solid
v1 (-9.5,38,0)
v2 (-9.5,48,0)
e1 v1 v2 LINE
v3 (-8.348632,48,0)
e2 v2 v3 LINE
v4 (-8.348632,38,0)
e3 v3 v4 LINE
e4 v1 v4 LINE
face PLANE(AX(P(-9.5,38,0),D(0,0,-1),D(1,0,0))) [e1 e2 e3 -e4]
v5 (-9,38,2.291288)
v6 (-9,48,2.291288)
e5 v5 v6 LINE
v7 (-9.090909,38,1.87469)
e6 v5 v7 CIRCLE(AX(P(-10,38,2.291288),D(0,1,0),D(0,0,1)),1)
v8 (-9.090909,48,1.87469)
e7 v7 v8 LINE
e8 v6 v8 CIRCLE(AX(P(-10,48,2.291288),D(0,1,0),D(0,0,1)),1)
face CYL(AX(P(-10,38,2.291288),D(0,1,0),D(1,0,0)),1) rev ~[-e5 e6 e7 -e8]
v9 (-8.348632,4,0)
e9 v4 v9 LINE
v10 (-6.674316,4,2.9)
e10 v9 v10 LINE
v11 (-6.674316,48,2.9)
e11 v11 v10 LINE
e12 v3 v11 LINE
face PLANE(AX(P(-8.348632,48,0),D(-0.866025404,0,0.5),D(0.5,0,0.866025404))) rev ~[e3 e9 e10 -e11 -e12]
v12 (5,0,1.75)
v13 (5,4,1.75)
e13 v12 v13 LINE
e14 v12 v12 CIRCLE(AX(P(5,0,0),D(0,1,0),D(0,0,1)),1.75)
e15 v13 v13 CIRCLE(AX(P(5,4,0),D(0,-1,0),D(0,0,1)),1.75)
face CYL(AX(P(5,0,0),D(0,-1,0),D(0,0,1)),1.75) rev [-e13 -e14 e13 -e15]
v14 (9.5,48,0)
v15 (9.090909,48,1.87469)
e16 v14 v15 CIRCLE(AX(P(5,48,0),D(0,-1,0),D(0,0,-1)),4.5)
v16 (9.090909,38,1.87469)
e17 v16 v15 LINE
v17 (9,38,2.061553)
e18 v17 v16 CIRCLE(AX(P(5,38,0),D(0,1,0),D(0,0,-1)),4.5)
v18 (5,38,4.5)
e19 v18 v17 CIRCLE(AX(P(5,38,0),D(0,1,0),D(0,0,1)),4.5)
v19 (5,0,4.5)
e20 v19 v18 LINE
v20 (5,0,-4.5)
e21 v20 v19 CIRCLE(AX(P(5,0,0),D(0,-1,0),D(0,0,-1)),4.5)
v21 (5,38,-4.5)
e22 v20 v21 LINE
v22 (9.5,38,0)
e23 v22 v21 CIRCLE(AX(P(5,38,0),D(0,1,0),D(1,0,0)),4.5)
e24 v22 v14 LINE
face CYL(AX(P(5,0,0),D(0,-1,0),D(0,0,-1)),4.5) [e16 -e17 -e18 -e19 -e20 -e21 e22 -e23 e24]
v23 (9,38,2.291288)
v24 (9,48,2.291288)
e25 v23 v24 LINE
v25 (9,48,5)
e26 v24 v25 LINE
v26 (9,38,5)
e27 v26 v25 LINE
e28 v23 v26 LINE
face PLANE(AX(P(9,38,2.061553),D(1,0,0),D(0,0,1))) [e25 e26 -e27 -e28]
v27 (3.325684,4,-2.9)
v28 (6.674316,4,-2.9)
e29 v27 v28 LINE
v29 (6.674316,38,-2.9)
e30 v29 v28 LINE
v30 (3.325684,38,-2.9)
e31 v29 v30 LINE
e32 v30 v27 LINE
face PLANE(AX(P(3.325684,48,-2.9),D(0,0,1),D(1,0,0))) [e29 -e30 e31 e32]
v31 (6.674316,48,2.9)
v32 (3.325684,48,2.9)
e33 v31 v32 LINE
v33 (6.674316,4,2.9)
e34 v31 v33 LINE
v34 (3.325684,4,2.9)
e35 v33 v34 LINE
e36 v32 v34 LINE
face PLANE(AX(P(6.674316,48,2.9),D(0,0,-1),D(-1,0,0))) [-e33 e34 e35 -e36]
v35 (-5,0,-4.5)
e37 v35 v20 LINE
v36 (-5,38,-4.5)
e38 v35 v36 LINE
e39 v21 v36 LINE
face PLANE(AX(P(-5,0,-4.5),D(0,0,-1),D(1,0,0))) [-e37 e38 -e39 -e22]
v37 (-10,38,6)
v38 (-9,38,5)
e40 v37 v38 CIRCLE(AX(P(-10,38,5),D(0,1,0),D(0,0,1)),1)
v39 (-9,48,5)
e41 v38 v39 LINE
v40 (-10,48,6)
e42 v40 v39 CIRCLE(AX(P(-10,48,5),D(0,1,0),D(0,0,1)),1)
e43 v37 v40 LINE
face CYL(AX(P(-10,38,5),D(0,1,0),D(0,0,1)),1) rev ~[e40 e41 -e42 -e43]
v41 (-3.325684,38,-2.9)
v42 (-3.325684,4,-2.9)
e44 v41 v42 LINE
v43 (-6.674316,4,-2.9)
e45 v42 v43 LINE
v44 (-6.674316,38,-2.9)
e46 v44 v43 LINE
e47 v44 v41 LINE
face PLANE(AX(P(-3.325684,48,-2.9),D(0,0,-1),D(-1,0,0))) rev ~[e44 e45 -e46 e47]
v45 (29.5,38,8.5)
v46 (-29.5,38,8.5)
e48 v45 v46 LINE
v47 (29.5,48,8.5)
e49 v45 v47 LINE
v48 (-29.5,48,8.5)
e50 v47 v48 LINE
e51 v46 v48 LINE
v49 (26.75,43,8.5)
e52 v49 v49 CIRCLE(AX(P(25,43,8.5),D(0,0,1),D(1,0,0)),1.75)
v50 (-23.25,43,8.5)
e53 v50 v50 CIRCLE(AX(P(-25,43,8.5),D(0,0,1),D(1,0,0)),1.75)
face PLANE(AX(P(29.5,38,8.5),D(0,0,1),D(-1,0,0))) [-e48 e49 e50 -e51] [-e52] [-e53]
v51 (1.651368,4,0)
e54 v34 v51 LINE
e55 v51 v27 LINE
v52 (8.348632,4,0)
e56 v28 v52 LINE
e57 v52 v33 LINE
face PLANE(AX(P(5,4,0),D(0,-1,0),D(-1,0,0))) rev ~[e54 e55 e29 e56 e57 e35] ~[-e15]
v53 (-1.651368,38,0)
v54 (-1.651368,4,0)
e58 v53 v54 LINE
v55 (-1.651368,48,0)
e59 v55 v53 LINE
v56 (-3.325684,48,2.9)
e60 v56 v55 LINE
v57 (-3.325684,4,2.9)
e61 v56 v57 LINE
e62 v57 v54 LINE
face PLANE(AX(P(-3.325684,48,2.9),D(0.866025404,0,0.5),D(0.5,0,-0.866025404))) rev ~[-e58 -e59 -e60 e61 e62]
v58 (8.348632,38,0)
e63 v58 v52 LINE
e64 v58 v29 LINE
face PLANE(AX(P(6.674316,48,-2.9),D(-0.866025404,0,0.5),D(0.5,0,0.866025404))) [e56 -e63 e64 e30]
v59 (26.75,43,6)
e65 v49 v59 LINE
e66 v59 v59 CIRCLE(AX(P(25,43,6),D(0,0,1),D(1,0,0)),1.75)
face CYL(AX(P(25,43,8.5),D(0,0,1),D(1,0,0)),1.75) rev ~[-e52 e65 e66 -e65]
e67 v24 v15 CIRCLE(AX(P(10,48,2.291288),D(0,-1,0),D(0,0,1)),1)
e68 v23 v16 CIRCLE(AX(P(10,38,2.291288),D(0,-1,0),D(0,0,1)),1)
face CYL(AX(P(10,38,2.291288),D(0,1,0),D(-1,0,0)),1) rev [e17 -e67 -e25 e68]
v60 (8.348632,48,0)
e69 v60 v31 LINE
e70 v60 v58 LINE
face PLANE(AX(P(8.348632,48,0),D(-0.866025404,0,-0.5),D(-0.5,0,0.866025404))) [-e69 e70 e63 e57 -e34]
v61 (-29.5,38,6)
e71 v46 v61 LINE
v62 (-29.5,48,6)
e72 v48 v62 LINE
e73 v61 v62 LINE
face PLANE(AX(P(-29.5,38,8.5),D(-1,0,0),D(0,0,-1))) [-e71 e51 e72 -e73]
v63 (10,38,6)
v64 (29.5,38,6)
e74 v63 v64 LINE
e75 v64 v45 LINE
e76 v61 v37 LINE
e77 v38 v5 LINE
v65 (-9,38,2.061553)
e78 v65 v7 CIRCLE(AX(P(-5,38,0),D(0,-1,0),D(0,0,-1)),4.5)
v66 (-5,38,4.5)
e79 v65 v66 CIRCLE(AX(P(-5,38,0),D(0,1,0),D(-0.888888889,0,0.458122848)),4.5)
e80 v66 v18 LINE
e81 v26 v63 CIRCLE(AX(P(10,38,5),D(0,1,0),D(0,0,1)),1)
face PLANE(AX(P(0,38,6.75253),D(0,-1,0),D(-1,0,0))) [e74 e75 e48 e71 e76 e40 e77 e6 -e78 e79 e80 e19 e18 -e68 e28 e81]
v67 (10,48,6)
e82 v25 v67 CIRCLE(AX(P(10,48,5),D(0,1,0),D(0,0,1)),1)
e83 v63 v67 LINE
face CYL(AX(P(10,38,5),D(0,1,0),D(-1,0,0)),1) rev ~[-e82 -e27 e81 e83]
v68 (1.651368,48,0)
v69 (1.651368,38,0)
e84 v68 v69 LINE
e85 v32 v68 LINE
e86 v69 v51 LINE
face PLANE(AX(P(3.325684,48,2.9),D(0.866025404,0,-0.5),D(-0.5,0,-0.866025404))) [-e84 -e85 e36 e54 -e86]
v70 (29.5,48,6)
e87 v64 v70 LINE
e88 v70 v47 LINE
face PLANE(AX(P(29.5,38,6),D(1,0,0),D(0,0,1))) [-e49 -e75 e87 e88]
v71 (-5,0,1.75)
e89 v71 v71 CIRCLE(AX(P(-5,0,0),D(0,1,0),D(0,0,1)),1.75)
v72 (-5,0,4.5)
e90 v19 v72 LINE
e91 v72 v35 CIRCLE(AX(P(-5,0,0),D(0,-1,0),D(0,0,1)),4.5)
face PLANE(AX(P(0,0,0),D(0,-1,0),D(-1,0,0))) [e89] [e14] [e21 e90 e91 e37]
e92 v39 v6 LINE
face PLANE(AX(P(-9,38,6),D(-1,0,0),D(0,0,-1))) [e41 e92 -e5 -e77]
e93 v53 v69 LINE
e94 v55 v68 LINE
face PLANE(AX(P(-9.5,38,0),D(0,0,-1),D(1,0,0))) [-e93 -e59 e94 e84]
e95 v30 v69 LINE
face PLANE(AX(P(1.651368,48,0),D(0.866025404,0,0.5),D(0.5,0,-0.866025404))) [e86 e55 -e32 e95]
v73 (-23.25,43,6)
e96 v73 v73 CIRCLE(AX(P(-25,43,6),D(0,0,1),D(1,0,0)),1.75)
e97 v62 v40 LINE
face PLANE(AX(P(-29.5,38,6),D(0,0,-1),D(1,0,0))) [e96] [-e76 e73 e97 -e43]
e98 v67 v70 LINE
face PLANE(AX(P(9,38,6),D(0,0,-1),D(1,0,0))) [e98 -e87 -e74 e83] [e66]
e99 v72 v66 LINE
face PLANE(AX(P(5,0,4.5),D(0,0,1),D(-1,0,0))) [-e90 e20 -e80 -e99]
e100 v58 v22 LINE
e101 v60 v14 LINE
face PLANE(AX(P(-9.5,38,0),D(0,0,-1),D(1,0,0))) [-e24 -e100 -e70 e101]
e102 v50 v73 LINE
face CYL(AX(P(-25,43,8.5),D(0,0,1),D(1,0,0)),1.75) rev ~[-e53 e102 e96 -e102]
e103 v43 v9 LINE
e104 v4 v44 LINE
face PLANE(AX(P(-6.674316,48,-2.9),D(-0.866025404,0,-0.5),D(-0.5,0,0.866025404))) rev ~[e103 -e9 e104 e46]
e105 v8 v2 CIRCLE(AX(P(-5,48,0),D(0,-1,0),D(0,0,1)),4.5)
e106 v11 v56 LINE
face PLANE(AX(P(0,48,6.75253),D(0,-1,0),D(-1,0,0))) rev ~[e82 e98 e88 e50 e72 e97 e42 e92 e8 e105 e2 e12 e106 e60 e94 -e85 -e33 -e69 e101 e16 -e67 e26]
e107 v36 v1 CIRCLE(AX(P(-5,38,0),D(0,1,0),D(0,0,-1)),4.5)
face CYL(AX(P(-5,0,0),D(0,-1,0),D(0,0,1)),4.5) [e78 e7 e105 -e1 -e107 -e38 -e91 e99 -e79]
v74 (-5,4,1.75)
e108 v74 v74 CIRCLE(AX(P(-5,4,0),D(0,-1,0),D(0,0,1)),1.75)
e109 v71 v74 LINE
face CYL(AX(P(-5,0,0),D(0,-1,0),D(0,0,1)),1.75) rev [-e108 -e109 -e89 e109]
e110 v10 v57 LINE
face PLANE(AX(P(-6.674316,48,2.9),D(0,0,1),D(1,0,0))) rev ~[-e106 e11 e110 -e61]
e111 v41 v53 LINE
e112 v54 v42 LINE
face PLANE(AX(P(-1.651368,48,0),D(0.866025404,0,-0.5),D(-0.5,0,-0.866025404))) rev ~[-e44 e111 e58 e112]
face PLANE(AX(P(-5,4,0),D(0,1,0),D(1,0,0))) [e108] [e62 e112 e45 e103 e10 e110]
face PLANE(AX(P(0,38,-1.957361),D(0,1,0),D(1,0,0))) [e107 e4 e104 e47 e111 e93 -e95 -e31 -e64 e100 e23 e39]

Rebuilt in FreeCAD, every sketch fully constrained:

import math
import FreeCAD as App
import Part
import Sketcher
from FreeCAD import Vector
Q = App.Units.Quantity


def edges_at(feature, points):
    """Names of the edges that pass closest to the given points."""
    edges = feature.Shape.Edges
    near = lambda p: min(range(len(edges)), key=lambda i: edges[i].distToShape(Part.Vertex(*p))[0])
    return sorted({f"Edge{near(p) + 1}" for p in points})

doc = App.newDocument("Part")
body = doc.addObject("PartDesign::Body", "Body")

# Sketch on XZ plane
sketch1 = body.newObject("Sketcher::SketchObject", "Sketch")
sketch1.AttachmentSupport = (doc.getObject("XZ_Plane"), [""])
sketch1.MapMode = "FlatFace"
sketch1.addGeometry([
    Part.LineSegment(Vector(5, -4.5, 0), Vector(-5, -4.5, 0)),  # 0
    Part.ArcOfCircle(Part.Circle(Vector(-5, 0, 0), Vector(0, 0, 1), 4.5), math.radians(90), math.radians(270)),  # 1
    Part.LineSegment(Vector(-5, 4.5, 0), Vector(5, 4.5, 0)),  # 2
    Part.ArcOfCircle(Part.Circle(Vector(5, 0, 0), Vector(0, 0, 1), 4.5), math.radians(-90), math.radians(90)),  # 3
    Part.Circle(Vector(5, 0, 0), Vector(0, 0, 1), 1.8),  # 4
    Part.Circle(Vector(-5, 0, 0), Vector(0, 0, 1), 1.8),  # 5
], False)
sketch1.addConstraint([
    Sketcher.Constraint("Tangent", 0, 2, 1, 2),
    Sketcher.Constraint("Tangent", 1, 1, 2, 1),
    Sketcher.Constraint("Tangent", 2, 2, 3, 2),
    Sketcher.Constraint("Tangent", 3, 1, 0, 1),
    Sketcher.Constraint("Horizontal", 0),
    Sketcher.Constraint("Horizontal", 2),
    Sketcher.Constraint("Coincident", 4, 3, 3, 3),
    Sketcher.Constraint("Coincident", 5, 3, 1, 3),
    Sketcher.Constraint("Equal", 4, 5),
    Sketcher.Constraint("Symmetric", 1, 3, 3, 3, -1, 1),
    Sketcher.Constraint("Diameter", 4, 3.5),
    Sketcher.Constraint("Radius", 1, 4.5),
    Sketcher.Constraint("DistanceX", 0, 2, 0, 1, 10.0),
])
pad1 = body.newObject("PartDesign::Pad", "Pad")
pad1.Profile = sketch1
pad1.Length = 48
pad1.Reversed = True

# Sketch on XZ plane
sketch2 = body.newObject("Sketcher::SketchObject", "Sketch001")
sketch2.AttachmentSupport = (doc.getObject("XZ_Plane"), [""])
sketch2.MapMode = "FlatFace"
sketch2.AttachmentOffset = App.Placement(Vector(0, 0, -48), App.Rotation())
sketch2.addGeometry([
    Part.LineSegment(Vector(-1.7, 0, 0), Vector(-3.3, -2.9, 0)),  # 0
    Part.LineSegment(Vector(-3.3, -2.9, 0), Vector(-6.7, -2.9, 0)),  # 1
    Part.LineSegment(Vector(-6.7, -2.9, 0), Vector(-8.3, 0, 0)),  # 2
    Part.LineSegment(Vector(-8.3, 0, 0), Vector(-6.7, 2.9, 0)),  # 3
    Part.LineSegment(Vector(-6.7, 2.9, 0), Vector(-3.3, 2.9, 0)),  # 4
    Part.LineSegment(Vector(-3.3, 2.9, 0), Vector(-1.7, 0, 0)),  # 5
    Part.LineSegment(Vector(1.7, 0, 0), Vector(3.3, 2.9, 0)),  # 6
    Part.LineSegment(Vector(3.3, 2.9, 0), Vector(6.7, 2.9, 0)),  # 7
    Part.LineSegment(Vector(6.7, 2.9, 0), Vector(8.3, 0, 0)),  # 8
    Part.LineSegment(Vector(8.3, 0, 0), Vector(6.7, -2.9, 0)),  # 9
    Part.LineSegment(Vector(6.7, -2.9, 0), Vector(3.3, -2.9, 0)),  # 10
    Part.LineSegment(Vector(3.3, -2.9, 0), Vector(1.7, 0, 0)),  # 11
], False)
sketch2.addConstraint([
    Sketcher.Constraint("Coincident", 0, 2, 1, 1),
    Sketcher.Constraint("Coincident", 1, 2, 2, 1),
    Sketcher.Constraint("Coincident", 2, 2, 3, 1),
    Sketcher.Constraint("Coincident", 3, 2, 4, 1),
    Sketcher.Constraint("Coincident", 4, 2, 5, 1),
    Sketcher.Constraint("Coincident", 5, 2, 0, 1),
    Sketcher.Constraint("Coincident", 6, 2, 7, 1),
    Sketcher.Constraint("Coincident", 7, 2, 8, 1),
    Sketcher.Constraint("Coincident", 8, 2, 9, 1),
    Sketcher.Constraint("Coincident", 9, 2, 10, 1),
    Sketcher.Constraint("Coincident", 10, 2, 11, 1),
    Sketcher.Constraint("Coincident", 11, 2, 6, 1),
    Sketcher.Constraint("Horizontal", 1),
    Sketcher.Constraint("Horizontal", 4),
    Sketcher.Constraint("Horizontal", 7),
    Sketcher.Constraint("Horizontal", 10),
    Sketcher.Constraint("Symmetric", 0, 2, 6, 2, -1, 1),
    Sketcher.Constraint("Symmetric", 2, 2, 8, 2, -1, 1),
    Sketcher.Constraint("Symmetric", 3, 2, 9, 2, -1, 1),
    Sketcher.Constraint("Symmetric", 5, 2, 11, 2, -1, 1),
    Sketcher.Constraint("Symmetric", 4, 2, 6, 2, -2),
    Sketcher.Constraint("PointOnObject", 2, 2, -1),
    Sketcher.Constraint("PointOnObject", 5, 2, -1),
    Sketcher.Constraint("Parallel", 0, 3),
    Sketcher.Constraint("Parallel", 2, 5),
    Sketcher.Constraint("Parallel", 5, 8),
    Sketcher.Constraint("Parallel", 8, 11),
    Sketcher.Constraint("Angle", 0, Q("-120 deg")),
    Sketcher.Constraint("DistanceX", 3, 2, 6, 2, 10.0),
    Sketcher.Constraint("DistanceY", 0, 2, -1, 1, 2.9),
    Sketcher.Constraint("DistanceX", 1, 2, 1, 1, 3.348632),
])
pocket1 = body.newObject("PartDesign::Pocket", "Pocket")
pocket1.Profile = sketch2
pocket1.Length = 44
pocket1.Reversed = True

# Sketch on XZ plane
sketch3 = body.newObject("Sketcher::SketchObject", "Sketch002")
sketch3.AttachmentSupport = (doc.getObject("XZ_Plane"), [""])
sketch3.MapMode = "FlatFace"
sketch3.AttachmentOffset = App.Placement(Vector(0, 0, -38), App.Rotation())
sketch3.addGeometry([
    Part.LineSegment(Vector(5, 4.5, 0), Vector(-5, 4.5, 0)),  # 0
    Part.ArcOfCircle(Part.Circle(Vector(-5, 0, 0), Vector(0, 0, 1), 4.5), math.radians(90), math.radians(153)),  # 1
    Part.LineSegment(Vector(-9, 2.1, 0), Vector(-9, 6, 0)),  # 2
    Part.LineSegment(Vector(-9, 6, 0), Vector(-29.5, 6, 0)),  # 3
    Part.LineSegment(Vector(-29.5, 6, 0), Vector(-29.5, 8.5, 0)),  # 4
    Part.LineSegment(Vector(-29.5, 8.5, 0), Vector(29.5, 8.5, 0)),  # 5
    Part.LineSegment(Vector(29.5, 8.5, 0), Vector(29.5, 6, 0)),  # 6
    Part.LineSegment(Vector(29.5, 6, 0), Vector(9, 6, 0)),  # 7
    Part.LineSegment(Vector(9, 6, 0), Vector(9, 2.1, 0)),  # 8
    Part.ArcOfCircle(Part.Circle(Vector(5, 0, 0), Vector(0, 0, 1), 4.5), math.radians(27), math.radians(90)),  # 9
], False)
sketch3.addConstraint([
    Sketcher.Constraint("Tangent", 0, 2, 1, 1),
    Sketcher.Constraint("Coincident", 1, 2, 2, 1),
    Sketcher.Constraint("Coincident", 2, 2, 3, 1),
    Sketcher.Constraint("Coincident", 3, 2, 4, 1),
    Sketcher.Constraint("Coincident", 4, 2, 5, 1),
    Sketcher.Constraint("Coincident", 5, 2, 6, 1),
    Sketcher.Constraint("Coincident", 6, 2, 7, 1),
    Sketcher.Constraint("Coincident", 7, 2, 8, 1),
    Sketcher.Constraint("Coincident", 8, 2, 9, 1),
    Sketcher.Constraint("Tangent", 9, 2, 0, 1),
    Sketcher.Constraint("Horizontal", 0),
    Sketcher.Constraint("Vertical", 2),
    Sketcher.Constraint("Horizontal", 3),
    Sketcher.Constraint("Vertical", 4),
    Sketcher.Constraint("Horizontal", 5),
    Sketcher.Constraint("Vertical", 6),
    Sketcher.Constraint("Horizontal", 7),
    Sketcher.Constraint("Vertical", 8),
    Sketcher.Constraint("Equal", 1, 9),
    Sketcher.Constraint("Symmetric", 1, 3, 9, 3, -1, 1),
    Sketcher.Constraint("Symmetric", 3, 2, 6, 2, -2),
    Sketcher.Constraint("Horizontal", 1, 2, 8, 2),
    Sketcher.Constraint("Radius", 1, 4.5),
    Sketcher.Constraint("DistanceX", 0, 2, 0, 1, 10.0),
    Sketcher.Constraint("DistanceX", 5, 1, 5, 2, 59.0),
    Sketcher.Constraint("DistanceX", 3, 2, 3, 1, 20.5),
    Sketcher.Constraint("DistanceY", 4, 1, 4, 2, 2.5),
    Sketcher.Constraint("DistanceY", -1, 1, 2, 2, 6.0),
])
pad2 = body.newObject("PartDesign::Pad", "Pad001")
pad2.Profile = sketch3
pad2.Length = 10
pad2.Reversed = True

# Sketch on XZ plane
sketch4 = body.newObject("Sketcher::SketchObject", "Sketch003")
sketch4.AttachmentSupport = (doc.getObject("XZ_Plane"), [""])
sketch4.MapMode = "FlatFace"
sketch4.AttachmentOffset = App.Placement(Vector(0, 0, -38), App.Rotation())
sketch4.addGeometry([
    Part.LineSegment(Vector(-9.5, 0, 0), Vector(9.5, 0, 0)),
    Part.ArcOfCircle(Part.Circle(Vector(5, 0, 0), Vector(0, 0, 1), 4.5), math.radians(-90), math.radians(0)),
    Part.LineSegment(Vector(5, -4.5, 0), Vector(-5, -4.5, 0)),
    Part.ArcOfCircle(Part.Circle(Vector(-5, 0, 0), Vector(0, 0, 1), 4.5), math.radians(-180), math.radians(-90)),
], False)
sketch4.addConstraint([
    Sketcher.Constraint("Coincident", 0, 2, 1, 2),
    Sketcher.Constraint("Tangent", 1, 1, 2, 1),
    Sketcher.Constraint("Tangent", 2, 2, 3, 2),
    Sketcher.Constraint("Coincident", 3, 1, 0, 1),
    Sketcher.Constraint("Horizontal", 0),
    Sketcher.Constraint("Horizontal", 2),
    Sketcher.Constraint("Equal", 1, 3),
    Sketcher.Constraint("Symmetric", 1, 3, 3, 3, -1, 1),
    Sketcher.Constraint("PointOnObject", 0, 2, -1),
    Sketcher.Constraint("Radius", 1, 4.5),
    Sketcher.Constraint("DistanceX", 0, 1, 0, 2, 19.0),
])
pocket2 = body.newObject("PartDesign::Pocket", "Pocket001")
pocket2.Profile = sketch4
pocket2.Length = 10
doc.recompute()

fillet = body.newObject("PartDesign::Fillet", "Fillet")
fillet.Base = (pocket2, edges_at(pocket2, [
    (-9, 43, 6),
    (-9, 43, 2.062),
    (9, 43, 2.062),
    (9, 43, 6),
]))
fillet.Radius = 1

# Sketch on XY plane
sketch5 = body.newObject("Sketcher::SketchObject", "Sketch004")
sketch5.AttachmentSupport = (doc.getObject("XY_Plane"), [""])
sketch5.MapMode = "FlatFace"
sketch5.AttachmentOffset = App.Placement(Vector(0, 0, 8.5), App.Rotation())
sketch5.addGeometry([
    Part.Circle(Vector(-25, 43, 0), Vector(0, 0, 1), 1.8),
    Part.Circle(Vector(25, 43, 0), Vector(0, 0, 1), 1.8),
], False)
sketch5.addConstraint([
    Sketcher.Constraint("Equal", 0, 1),
    Sketcher.Constraint("Symmetric", 0, 3, 1, 3, -2),
    Sketcher.Constraint("Diameter", 0, 3.5),
    Sketcher.Constraint("DistanceX", 0, 3, -1, 1, 25.0),
    Sketcher.Constraint("DistanceY", -1, 1, 0, 3, 43.0),
])
pocket3 = body.newObject("PartDesign::Pocket", "Pocket002")
pocket3.Profile = sketch5
pocket3.Length = 10

doc.recompute()
